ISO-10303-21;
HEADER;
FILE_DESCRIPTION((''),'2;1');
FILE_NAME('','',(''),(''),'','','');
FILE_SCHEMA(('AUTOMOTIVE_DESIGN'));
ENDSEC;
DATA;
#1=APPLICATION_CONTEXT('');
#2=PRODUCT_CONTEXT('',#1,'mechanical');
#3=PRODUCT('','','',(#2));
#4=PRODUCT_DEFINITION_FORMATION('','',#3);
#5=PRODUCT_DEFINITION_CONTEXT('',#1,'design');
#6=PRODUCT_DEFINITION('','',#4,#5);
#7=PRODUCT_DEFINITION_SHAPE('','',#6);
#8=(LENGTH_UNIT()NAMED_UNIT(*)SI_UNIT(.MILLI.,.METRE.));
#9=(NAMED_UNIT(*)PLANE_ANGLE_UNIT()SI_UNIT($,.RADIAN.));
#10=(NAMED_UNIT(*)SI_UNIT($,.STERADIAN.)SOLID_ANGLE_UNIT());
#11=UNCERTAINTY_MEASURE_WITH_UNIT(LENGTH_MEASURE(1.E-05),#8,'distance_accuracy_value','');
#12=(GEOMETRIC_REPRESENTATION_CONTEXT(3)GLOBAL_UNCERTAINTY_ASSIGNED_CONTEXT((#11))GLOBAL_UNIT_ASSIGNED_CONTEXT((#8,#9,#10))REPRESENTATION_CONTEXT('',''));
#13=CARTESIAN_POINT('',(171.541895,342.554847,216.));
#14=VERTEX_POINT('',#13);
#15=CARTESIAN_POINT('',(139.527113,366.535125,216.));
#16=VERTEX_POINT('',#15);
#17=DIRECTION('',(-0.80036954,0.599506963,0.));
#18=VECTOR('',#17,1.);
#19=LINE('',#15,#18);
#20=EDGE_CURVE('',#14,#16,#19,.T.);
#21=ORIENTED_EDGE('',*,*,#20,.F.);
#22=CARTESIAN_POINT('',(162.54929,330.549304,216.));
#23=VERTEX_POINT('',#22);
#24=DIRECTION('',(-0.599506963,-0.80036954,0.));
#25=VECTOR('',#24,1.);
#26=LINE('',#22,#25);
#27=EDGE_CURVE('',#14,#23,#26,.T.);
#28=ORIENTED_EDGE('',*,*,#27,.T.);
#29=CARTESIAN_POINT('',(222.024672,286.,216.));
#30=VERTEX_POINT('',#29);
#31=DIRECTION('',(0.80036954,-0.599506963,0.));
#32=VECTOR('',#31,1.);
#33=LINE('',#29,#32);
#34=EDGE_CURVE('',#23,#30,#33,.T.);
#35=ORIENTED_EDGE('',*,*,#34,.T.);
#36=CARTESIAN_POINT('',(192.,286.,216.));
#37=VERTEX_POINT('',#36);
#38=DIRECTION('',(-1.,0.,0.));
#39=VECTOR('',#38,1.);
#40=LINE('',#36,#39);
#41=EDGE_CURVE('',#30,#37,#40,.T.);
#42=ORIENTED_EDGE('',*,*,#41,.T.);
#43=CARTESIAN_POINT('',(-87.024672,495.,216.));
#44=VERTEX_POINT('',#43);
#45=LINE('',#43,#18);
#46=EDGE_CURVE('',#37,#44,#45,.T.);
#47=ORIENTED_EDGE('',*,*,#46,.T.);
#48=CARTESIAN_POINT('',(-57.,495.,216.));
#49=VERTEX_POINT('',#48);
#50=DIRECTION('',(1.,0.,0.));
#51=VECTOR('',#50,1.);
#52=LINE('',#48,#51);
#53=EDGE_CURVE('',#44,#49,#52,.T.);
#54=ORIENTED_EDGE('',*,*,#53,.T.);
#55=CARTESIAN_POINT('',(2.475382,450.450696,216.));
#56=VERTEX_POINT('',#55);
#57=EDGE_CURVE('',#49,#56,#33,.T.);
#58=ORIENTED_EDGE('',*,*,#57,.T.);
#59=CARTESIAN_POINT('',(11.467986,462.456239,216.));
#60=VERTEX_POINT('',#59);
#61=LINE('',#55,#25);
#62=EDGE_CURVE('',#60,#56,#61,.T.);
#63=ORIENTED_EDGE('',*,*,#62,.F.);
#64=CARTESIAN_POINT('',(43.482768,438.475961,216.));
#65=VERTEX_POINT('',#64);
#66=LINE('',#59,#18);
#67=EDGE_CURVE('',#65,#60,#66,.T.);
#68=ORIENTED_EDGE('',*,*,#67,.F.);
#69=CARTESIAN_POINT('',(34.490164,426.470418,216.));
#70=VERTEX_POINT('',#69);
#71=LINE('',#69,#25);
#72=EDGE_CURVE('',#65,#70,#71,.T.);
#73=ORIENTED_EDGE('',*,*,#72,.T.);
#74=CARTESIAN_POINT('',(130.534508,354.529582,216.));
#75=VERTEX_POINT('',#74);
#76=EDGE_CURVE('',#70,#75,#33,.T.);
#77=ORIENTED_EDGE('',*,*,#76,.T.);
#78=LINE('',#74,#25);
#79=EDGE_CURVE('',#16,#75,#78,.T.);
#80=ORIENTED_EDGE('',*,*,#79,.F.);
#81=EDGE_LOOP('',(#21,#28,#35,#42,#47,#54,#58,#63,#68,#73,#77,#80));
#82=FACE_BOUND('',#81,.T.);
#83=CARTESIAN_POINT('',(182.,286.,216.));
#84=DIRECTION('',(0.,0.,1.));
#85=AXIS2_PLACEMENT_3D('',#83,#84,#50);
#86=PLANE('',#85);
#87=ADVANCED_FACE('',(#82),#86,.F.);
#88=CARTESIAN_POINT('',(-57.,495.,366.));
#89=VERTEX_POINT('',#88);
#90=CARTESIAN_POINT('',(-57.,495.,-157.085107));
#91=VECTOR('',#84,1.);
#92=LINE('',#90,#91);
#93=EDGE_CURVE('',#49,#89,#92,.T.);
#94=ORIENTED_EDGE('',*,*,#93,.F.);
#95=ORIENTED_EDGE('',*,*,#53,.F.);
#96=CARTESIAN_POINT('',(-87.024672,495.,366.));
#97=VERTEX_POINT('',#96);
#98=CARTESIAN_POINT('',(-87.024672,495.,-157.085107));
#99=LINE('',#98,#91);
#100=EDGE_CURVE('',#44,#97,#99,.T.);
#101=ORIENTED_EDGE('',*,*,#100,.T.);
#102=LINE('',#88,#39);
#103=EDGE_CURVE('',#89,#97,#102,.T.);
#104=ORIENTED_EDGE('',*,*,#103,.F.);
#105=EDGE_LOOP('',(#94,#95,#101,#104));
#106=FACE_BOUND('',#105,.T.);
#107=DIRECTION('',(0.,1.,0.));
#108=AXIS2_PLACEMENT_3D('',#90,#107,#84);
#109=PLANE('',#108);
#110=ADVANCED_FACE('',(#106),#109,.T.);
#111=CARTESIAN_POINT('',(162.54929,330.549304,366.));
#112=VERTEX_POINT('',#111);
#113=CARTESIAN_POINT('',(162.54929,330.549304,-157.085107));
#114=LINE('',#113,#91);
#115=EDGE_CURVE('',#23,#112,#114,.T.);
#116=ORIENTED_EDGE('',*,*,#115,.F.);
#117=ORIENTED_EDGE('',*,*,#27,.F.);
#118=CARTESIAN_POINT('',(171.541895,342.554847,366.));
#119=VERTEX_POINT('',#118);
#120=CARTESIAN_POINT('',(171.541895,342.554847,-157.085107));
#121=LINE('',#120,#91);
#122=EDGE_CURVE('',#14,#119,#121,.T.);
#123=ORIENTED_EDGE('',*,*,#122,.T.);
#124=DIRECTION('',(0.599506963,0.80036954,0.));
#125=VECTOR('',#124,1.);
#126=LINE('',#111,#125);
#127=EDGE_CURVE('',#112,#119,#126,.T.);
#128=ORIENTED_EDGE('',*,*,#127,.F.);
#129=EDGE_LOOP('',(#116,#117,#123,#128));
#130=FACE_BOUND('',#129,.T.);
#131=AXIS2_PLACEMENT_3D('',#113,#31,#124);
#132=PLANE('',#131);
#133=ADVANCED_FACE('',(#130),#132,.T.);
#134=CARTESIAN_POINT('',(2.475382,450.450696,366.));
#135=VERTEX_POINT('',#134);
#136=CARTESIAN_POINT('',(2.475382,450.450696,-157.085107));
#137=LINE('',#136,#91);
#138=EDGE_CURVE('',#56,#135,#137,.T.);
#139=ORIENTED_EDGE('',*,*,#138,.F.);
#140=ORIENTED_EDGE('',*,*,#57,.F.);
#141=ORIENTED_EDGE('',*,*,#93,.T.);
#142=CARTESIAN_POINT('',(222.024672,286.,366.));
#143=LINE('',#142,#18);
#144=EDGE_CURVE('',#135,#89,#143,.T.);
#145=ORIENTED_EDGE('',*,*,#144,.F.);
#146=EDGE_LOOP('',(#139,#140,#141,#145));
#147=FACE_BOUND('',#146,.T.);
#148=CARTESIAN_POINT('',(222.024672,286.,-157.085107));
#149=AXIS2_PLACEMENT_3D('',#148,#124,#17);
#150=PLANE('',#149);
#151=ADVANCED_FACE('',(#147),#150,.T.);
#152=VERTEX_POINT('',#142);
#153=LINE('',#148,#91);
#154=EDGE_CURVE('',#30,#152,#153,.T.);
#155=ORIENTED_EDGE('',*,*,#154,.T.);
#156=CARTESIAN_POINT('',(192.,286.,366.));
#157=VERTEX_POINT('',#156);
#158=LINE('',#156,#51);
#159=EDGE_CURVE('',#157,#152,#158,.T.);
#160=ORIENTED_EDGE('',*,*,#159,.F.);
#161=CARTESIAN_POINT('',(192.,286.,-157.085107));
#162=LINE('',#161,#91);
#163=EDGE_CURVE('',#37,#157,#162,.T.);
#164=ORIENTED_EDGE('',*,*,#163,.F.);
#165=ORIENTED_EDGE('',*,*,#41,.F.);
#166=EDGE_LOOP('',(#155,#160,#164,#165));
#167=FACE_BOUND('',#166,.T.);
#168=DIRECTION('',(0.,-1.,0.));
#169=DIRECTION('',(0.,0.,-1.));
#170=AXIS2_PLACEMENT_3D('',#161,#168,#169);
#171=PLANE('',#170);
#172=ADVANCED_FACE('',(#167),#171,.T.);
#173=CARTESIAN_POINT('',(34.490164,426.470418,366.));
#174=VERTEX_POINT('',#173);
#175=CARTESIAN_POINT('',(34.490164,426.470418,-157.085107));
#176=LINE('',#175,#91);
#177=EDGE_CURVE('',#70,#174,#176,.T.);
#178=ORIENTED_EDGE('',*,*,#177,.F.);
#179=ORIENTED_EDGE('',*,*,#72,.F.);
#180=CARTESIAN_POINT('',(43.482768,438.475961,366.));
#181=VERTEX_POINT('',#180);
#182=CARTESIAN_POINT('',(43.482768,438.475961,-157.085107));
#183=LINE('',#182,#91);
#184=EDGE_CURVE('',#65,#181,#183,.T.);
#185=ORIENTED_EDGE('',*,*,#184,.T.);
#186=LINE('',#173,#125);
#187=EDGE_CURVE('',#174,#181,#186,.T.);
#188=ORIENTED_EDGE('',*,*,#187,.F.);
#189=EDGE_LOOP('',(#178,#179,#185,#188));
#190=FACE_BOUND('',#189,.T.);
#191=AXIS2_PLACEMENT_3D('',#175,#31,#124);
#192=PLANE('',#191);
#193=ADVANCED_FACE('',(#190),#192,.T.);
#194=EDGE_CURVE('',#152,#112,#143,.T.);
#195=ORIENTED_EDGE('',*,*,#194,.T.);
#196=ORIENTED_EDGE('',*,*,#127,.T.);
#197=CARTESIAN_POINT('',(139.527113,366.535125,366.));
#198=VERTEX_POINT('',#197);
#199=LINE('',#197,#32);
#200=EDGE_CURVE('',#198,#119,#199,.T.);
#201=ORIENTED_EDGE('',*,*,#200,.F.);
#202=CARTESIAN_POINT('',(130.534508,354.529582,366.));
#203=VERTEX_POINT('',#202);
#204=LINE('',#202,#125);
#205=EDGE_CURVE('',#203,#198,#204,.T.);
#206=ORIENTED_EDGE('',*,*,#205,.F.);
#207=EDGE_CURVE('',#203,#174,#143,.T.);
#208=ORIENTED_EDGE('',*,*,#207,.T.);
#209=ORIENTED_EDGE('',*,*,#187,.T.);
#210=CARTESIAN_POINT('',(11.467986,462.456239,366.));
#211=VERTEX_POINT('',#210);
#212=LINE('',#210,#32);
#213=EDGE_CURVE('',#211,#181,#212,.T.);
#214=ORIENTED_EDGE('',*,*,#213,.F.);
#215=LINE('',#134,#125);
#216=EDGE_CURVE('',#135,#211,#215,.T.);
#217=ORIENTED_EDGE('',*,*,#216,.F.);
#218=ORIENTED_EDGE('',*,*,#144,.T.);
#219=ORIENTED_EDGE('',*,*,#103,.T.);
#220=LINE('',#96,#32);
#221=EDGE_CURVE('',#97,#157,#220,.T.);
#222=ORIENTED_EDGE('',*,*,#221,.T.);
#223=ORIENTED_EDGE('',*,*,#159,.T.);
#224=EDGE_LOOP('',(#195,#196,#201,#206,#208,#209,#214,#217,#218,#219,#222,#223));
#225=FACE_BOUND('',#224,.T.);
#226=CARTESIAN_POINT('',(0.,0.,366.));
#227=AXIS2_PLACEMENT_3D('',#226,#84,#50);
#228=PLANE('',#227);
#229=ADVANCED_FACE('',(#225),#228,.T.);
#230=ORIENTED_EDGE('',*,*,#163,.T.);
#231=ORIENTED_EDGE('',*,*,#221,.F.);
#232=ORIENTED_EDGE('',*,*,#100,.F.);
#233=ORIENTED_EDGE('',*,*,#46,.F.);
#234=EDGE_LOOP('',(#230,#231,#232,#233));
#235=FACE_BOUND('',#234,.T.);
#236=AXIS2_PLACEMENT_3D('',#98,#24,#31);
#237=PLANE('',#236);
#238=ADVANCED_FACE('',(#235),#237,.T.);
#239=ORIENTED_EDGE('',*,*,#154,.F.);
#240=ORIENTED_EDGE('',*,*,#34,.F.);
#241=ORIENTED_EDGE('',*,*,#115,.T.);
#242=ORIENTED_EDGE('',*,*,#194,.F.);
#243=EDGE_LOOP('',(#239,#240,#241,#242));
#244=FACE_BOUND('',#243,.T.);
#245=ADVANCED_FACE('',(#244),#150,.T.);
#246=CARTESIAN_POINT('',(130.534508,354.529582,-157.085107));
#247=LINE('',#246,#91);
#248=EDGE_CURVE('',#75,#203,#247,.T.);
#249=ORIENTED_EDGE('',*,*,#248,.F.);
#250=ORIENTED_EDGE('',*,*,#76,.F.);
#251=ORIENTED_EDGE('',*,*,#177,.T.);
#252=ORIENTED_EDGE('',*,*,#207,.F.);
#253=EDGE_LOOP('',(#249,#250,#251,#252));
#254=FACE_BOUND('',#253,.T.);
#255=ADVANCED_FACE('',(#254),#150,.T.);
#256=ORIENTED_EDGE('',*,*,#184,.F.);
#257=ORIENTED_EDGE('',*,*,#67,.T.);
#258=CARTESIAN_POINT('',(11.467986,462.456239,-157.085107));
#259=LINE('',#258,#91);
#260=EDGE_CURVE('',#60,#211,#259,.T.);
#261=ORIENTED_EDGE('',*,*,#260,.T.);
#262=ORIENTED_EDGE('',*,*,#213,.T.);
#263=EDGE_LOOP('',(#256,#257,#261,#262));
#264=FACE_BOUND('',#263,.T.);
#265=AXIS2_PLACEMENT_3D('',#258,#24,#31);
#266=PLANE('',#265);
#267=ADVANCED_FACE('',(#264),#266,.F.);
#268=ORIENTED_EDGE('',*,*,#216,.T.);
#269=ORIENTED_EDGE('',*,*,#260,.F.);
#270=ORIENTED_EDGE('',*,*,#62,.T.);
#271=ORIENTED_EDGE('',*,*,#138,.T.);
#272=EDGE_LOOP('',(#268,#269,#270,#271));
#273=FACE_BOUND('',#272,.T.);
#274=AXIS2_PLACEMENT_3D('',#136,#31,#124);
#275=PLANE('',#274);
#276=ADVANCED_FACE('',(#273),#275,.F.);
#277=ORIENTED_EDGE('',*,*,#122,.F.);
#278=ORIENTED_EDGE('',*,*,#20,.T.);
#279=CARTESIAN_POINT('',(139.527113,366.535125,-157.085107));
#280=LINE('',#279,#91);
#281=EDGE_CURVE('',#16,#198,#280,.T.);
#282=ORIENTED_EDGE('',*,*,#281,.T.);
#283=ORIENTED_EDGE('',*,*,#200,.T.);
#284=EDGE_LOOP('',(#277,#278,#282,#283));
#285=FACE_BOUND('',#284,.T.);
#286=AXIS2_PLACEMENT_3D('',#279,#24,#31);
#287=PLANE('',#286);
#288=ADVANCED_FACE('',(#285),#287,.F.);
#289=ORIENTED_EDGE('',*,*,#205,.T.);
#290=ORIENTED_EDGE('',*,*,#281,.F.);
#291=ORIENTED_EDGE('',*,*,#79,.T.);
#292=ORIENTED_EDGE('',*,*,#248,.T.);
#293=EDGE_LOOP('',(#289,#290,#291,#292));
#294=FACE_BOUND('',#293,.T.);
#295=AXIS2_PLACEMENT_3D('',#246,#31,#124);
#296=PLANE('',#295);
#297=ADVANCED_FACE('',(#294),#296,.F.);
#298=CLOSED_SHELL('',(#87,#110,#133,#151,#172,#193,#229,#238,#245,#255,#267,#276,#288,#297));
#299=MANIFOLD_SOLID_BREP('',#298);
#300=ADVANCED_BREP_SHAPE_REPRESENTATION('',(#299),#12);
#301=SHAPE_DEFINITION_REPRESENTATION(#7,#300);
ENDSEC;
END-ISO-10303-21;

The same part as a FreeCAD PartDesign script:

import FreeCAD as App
import Part
import Sketcher
from FreeCAD import Vector


def add_polygon(sketch, points):
    """Adds a closed chain of lines whose ends are joined by coincident constraints."""
    first, n = sketch.GeometryCount, len(points)
    for a, b in zip(points, points[1:] + points[:1]):
        sketch.addGeometry(Part.LineSegment(App.Vector(*a, 0), App.Vector(*b, 0)), False)
    for i in range(n):
        sketch.addConstraint(Sketcher.Constraint("Coincident", first + i, 2, first + (i + 1) % n, 1))

doc = App.newDocument("Part")
body = doc.addObject("PartDesign::Body", "Body")

sketch1 = body.newObject("Sketcher::SketchObject", "Sketch")
sketch1.AttachmentSupport = (doc.getObject("XY_Plane"), [""])
sketch1.MapMode = "FlatFace"
sketch1.AttachmentOffset = App.Placement(Vector(0, 0, 366), App.Rotation())
add_polygon(sketch1, [(-87.024672, 495), (192, 286), (222.024672, 286), (162.54929, 330.549304), (171.541895, 342.554847), (139.527113, 366.535125), (130.534508, 354.529582), (34.490164, 426.470418), (43.482768, 438.475961), (11.467986, 462.456239), (2.475382, 450.450696), (-57, 495)])
sketch1.addConstraint([
    Sketcher.Constraint("Horizontal", 1),
    Sketcher.Constraint("Horizontal", 11),
    Sketcher.Constraint("Parallel", 0, 2),
    Sketcher.Constraint("Perpendicular", 2, 3),
    Sketcher.Constraint("Perpendicular", 3, 4),
    Sketcher.Constraint("Perpendicular", 4, 5),
    Sketcher.Constraint("Perpendicular", 5, 6),
    Sketcher.Constraint("Perpendicular", 6, 7),
    Sketcher.Constraint("Perpendicular", 7, 8),
    Sketcher.Constraint("Perpendicular", 8, 9),
    Sketcher.Constraint("Perpendicular", 9, 10),
    Sketcher.Constraint("Equal", 1, 11),
    Sketcher.Constraint("Equal", 3, 5),
    Sketcher.Constraint("Equal", 5, 7),
    Sketcher.Constraint("Equal", 4, 8),
    Sketcher.Constraint("Equal", 2, 10),
    Sketcher.Constraint("Distance", 3, 15.0),
    Sketcher.Constraint("Distance", 4, 40.0),
    Sketcher.Constraint("Distance", 6, 120.0),
    Sketcher.Constraint("DistanceX", -1, 1, 0, 2, 192.0),
    Sketcher.Constraint("DistanceY", -1, 1, 0, 2, 286.0),
    Sketcher.Constraint("DistanceX", 10, 2, -1, 1, 57.0),
    Sketcher.Constraint("DistanceY", -1, 1, 10, 2, 495.0),
    Sketcher.Constraint("Distance", 2, 74.309902),
])
pad1 = body.newObject("PartDesign::Pad", "Pad")
pad1.Profile = sketch1
pad1.Length = 150
pad1.Reversed = True

doc.recompute()
